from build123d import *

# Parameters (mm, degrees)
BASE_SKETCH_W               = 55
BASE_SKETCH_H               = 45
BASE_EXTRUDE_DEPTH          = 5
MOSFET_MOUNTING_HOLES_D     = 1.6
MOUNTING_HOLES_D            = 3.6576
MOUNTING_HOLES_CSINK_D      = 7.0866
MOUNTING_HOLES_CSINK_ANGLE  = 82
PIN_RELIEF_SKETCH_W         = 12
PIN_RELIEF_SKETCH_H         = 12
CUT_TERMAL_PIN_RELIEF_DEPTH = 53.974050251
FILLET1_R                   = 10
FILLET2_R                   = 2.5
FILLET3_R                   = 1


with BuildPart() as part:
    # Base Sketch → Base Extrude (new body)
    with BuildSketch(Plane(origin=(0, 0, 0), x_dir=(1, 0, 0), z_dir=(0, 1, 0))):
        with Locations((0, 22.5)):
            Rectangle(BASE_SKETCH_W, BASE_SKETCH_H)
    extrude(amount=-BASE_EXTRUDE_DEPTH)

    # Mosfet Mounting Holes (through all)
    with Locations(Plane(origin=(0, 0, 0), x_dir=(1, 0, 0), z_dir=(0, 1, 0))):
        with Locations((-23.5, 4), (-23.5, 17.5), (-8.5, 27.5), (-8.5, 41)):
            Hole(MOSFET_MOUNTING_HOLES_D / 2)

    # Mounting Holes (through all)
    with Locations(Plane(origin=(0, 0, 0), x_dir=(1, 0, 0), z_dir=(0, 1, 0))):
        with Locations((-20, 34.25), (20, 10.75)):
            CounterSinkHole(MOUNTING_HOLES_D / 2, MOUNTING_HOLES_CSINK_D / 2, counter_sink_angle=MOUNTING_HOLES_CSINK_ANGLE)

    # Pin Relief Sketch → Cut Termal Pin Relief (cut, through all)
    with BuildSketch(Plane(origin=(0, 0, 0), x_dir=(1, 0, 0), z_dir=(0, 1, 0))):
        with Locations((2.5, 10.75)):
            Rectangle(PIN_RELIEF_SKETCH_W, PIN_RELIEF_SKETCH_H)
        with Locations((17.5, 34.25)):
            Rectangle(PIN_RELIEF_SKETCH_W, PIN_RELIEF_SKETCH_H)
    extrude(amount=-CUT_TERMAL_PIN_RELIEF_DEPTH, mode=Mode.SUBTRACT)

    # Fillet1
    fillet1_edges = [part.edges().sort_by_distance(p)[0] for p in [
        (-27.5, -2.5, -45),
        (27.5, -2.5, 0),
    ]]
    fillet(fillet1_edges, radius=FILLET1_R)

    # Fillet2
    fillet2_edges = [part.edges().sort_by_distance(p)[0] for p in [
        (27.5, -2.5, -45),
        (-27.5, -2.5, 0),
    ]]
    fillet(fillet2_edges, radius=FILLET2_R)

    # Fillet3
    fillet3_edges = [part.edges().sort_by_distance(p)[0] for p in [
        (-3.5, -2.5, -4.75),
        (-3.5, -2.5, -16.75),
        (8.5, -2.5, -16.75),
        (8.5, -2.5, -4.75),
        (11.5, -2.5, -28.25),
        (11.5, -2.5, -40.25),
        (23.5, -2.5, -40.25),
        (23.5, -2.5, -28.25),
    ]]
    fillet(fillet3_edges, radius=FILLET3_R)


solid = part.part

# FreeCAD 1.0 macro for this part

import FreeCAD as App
import Part
import Sketcher

V = App.Vector


def edges_at(feature, points):
    """Names of the edges that pass closest to the given points."""
    edges = feature.Shape.Edges
    near = lambda p: min(range(len(edges)), key=lambda i: edges[i].distToShape(Part.Vertex(*p))[0])
    return sorted({f"Edge{near(p) + 1}" for p in points})

doc = App.newDocument("Part")
params = doc.addObject("Spreadsheet::Sheet", "Params")
for row, (alias, value) in enumerate([
    ("sketch1_width", "55 mm"),
    ("sketch1_height", "45 mm"),
    ("pad1_length", "5 mm"),
    ("sketch2_diameter", "1.6 mm"),
    ("hole_diameter", "1.6 mm"),
    ("hole2_diameter", "3.6576 mm"),
    ("hole2_csink_diameter", "7.0866 mm"),
    ("sketch4_width", "12 mm"),
    ("fillet_radius", "10 mm"),
    ("fillet2_radius", "2.5 mm"),
    ("fillet3_radius", "1 mm"),
], start=1):
    params.set(f"A{row}", alias)
    params.set(f"B{row}", "=" + value)
    params.setAlias(f"B{row}", alias)

body = doc.addObject("PartDesign::Body", "Body")

sketch1 = body.newObject("Sketcher::SketchObject", "Sketch")
sketch1.AttachmentSupport = (doc.getObject("XZ_Plane"), [""])
sketch1.MapMode = "FlatFace"
sketch1.addGeometry(Part.LineSegment(V(-28, -45, 0), V(-28, 0, 0)), False)
sketch1.addGeometry(Part.LineSegment(V(-28, 0, 0), V(28, 0, 0)), False)
sketch1.addGeometry(Part.LineSegment(V(28, 0, 0), V(28, -45, 0)), False)
sketch1.addGeometry(Part.LineSegment(V(28, -45, 0), V(-28, -45, 0)), False)
sketch1.addConstraint(Sketcher.Constraint("Coincident", 0, 2, 1, 1))
sketch1.addConstraint(Sketcher.Constraint("Coincident", 1, 2, 2, 1))
sketch1.addConstraint(Sketcher.Constraint("Coincident", 2, 2, 3, 1))
sketch1.addConstraint(Sketcher.Constraint("Coincident", 3, 2, 0, 1))
sketch1.addConstraint(Sketcher.Constraint("Vertical", 0))
sketch1.addConstraint(Sketcher.Constraint("Horizontal", 1))
sketch1.addConstraint(Sketcher.Constraint("Vertical", 2))
sketch1.addConstraint(Sketcher.Constraint("Horizontal", 3))
sketch1.addConstraint(Sketcher.Constraint("Symmetric", 0, 2, 1, 2, -1, 1))
sketch1.addConstraint(Sketcher.Constraint("DistanceX", 1, 1, 1, 2, 55.0))
sketch1.addConstraint(Sketcher.Constraint("DistanceY", 0, 1, 0, 2, 45.0))
sketch1.setExpression("Constraints[9]", "Params.sketch1_width")
sketch1.setExpression("Constraints[10]", "Params.sketch1_height")
pad1 = body.newObject("PartDesign::Pad", "Pad")
pad1.Profile = sketch1
pad1.setExpression("Length", "Params.pad1_length")

sketch2 = body.newObject("Sketcher::SketchObject", "Sketch001")
sketch2.AttachmentSupport = (doc.getObject("XZ_Plane"), [""])
sketch2.MapMode = "FlatFace"
sketch2.addGeometry(Part.Circle(V(-23.5, -4, 0), V(0, 0, 1), 0.8), False)
sketch2.addGeometry(Part.Circle(V(-23.5, -17.5, 0), V(0, 0, 1), 0.8), False)
sketch2.addGeometry(Part.Circle(V(-8.5, -27.5, 0), V(0, 0, 1), 0.8), False)
sketch2.addGeometry(Part.Circle(V(-8.5, -41, 0), V(0, 0, 1), 0.8), False)
sketch2.addConstraint(Sketcher.Constraint("Equal", 0, 1))
sketch2.addConstraint(Sketcher.Constraint("Equal", 1, 2))
sketch2.addConstraint(Sketcher.Constraint("Equal", 2, 3))
sketch2.addConstraint(Sketcher.Constraint("Vertical", 0, 3, 1, 3))
sketch2.addConstraint(Sketcher.Constraint("Vertical", 2, 3, 3, 3))
sketch2.addConstraint(Sketcher.Constraint("Diameter", 0, 1.6))
sketch2.addConstraint(Sketcher.Constraint("DistanceY", 0, 3, -1, 1, 4.0))
sketch2.addConstraint(Sketcher.Constraint("DistanceY", 3, 3, -1, 1, 41.0))
sketch2.addConstraint(Sketcher.Constraint("DistanceX", 1, 3, 2, 3, 15.0))
sketch2.addConstraint(Sketcher.Constraint("DistanceY", 2, 3, 1, 3, 10.0))
sketch2.addConstraint(Sketcher.Constraint("DistanceX", 0, 3, -1, 1, 23.5))
sketch2.addConstraint(Sketcher.Constraint("DistanceY", 1, 3, -1, 1, 17.5))
sketch2.setExpression("Constraints[5]", "Params.sketch2_diameter")
doc.recompute()
hole = body.newObject("PartDesign::Hole", "Hole")
hole.Profile = sketch2
hole.ThreadType = "None"
hole.setExpression("Diameter", "Params.hole_diameter")
hole.DepthType = "ThroughAll"
hole.Reversed = True

sketch3 = body.newObject("Sketcher::SketchObject", "Sketch002")
sketch3.AttachmentSupport = (doc.getObject("XZ_Plane"), [""])
sketch3.MapMode = "FlatFace"
sketch3.addGeometry(Part.Circle(V(-20, -34.2, 0), V(0, 0, 1), 1.8), False)
sketch3.addGeometry(Part.Circle(V(20, -10.8, 0), V(0, 0, 1), 1.8), False)
sketch3.addConstraint(Sketcher.Constraint("Equal", 0, 1))
sketch3.addConstraint(Sketcher.Constraint("DistanceX", 0, 3, -1, 1, 20.0))
sketch3.addConstraint(Sketcher.Constraint("DistanceX", -1, 1, 1, 3, 20.0))
sketch3.addConstraint(Sketcher.Constraint("Diameter", 0, 3.6576))
sketch3.addConstraint(Sketcher.Constraint("DistanceY", 0, 3, 1, 3, 23.5))
sketch3.addConstraint(Sketcher.Constraint("DistanceY", 0, 3, -1, 1, 34.25))
doc.recompute()
hole2 = body.newObject("PartDesign::Hole", "Hole001")
hole2.Profile = sketch3
hole2.ThreadType = "None"
hole2.setExpression("Diameter", "Params.hole2_diameter")
hole2.DepthType = "ThroughAll"
hole2.HoleCutType = "Countersink"
hole2.setExpression("HoleCutDiameter", "Params.hole2_csink_diameter")
hole2.HoleCutCountersinkAngle = 82
hole2.Reversed = True

sketch4 = body.newObject("Sketcher::SketchObject", "Sketch003")
sketch4.AttachmentSupport = (doc.getObject("XZ_Plane"), [""])
sketch4.MapMode = "FlatFace"
sketch4.addGeometry(Part.LineSegment(V(-4, -17, 0), V(-4, -5, 0)), False)
sketch4.addGeometry(Part.LineSegment(V(-4, -5, 0), V(8, -5, 0)), False)
sketch4.addGeometry(Part.LineSegment(V(8, -5, 0), V(8, -17, 0)), False)
sketch4.addGeometry(Part.LineSegment(V(8, -17, 0), V(-4, -17, 0)), False)
sketch4.addGeometry(Part.LineSegment(V(12, -40, 0), V(12, -28, 0)), False)
sketch4.addGeometry(Part.LineSegment(V(12, -28, 0), V(24, -28, 0)), False)
sketch4.addGeometry(Part.LineSegment(V(24, -28, 0), V(24, -40, 0)), False)
sketch4.addGeometry(Part.LineSegment(V(24, -40, 0), V(12, -40, 0)), False)
sketch4.addConstraint(Sketcher.Constraint("Coincident", 0, 2, 1, 1))
sketch4.addConstraint(Sketcher.Constraint("Coincident", 1, 2, 2, 1))
sketch4.addConstraint(Sketcher.Constraint("Coincident", 2, 2, 3, 1))
sketch4.addConstraint(Sketcher.Constraint("Coincident", 3, 2, 0, 1))
sketch4.addConstraint(Sketcher.Constraint("Coincident", 4, 2, 5, 1))
sketch4.addConstraint(Sketcher.Constraint("Coincident", 5, 2, 6, 1))
sketch4.addConstraint(Sketcher.Constraint("Coincident", 6, 2, 7, 1))
sketch4.addConstraint(Sketcher.Constraint("Coincident", 7, 2, 4, 1))
sketch4.addConstraint(Sketcher.Constraint("Vertical", 0))
sketch4.addConstraint(Sketcher.Constraint("Horizontal", 1))
sketch4.addConstraint(Sketcher.Constraint("Vertical", 2))
sketch4.addConstraint(Sketcher.Constraint("Horizontal", 3))
sketch4.addConstraint(Sketcher.Constraint("Vertical", 4))
sketch4.addConstraint(Sketcher.Constraint("Horizontal", 5))
sketch4.addConstraint(Sketcher.Constraint("Vertical", 6))
sketch4.addConstraint(Sketcher.Constraint("Horizontal", 7))
sketch4.addConstraint(Sketcher.Constraint("Equal", 3, 5))
sketch4.addConstraint(Sketcher.Constraint("Equal", 7, 0))
sketch4.addConstraint(Sketcher.Constraint("Equal", 2, 4))
sketch4.addConstraint(Sketcher.Constraint("DistanceX", 1, 1, 1, 2, 12.0))
sketch4.addConstraint(Sketcher.Constraint("DistanceX", 2, 2, 4, 2, 3.0))
sketch4.addConstraint(Sketcher.Constraint("DistanceX", 0, 2, -1, 1, 3.5))
sketch4.addConstraint(Sketcher.Constraint("DistanceY", 4, 2, 2, 2, 11.5))
sketch4.addConstraint(Sketcher.Constraint("DistanceY", 0, 2, -1, 1, 4.75))
sketch4.setExpression("Constraints[19]", "Params.sketch4_width")
pocket1 = body.newObject("PartDesign::Pocket", "Pocket")
pocket1.Profile = sketch4
pocket1.Type = "ThroughAll"
pocket1.Reversed = True
doc.recompute()

fillet = body.newObject("PartDesign::Fillet", "Fillet")
fillet.Base = (pocket1, edges_at(pocket1, [(-27.5, -2.5, -45), (27.5, -2.5, 0)]))
fillet.setExpression("Radius", "Params.fillet_radius")
doc.recompute()

fillet2 = body.newObject("PartDesign::Fillet", "Fillet001")
fillet2.Base = (fillet, edges_at(fillet, [(27.5, -2.5, -45), (-27.5, -2.5, 0)]))
fillet2.setExpression("Radius", "Params.fillet2_radius")
doc.recompute()

fillet3 = body.newObject("PartDesign::Fillet", "Fillet002")
fillet3.Base = (fillet2, edges_at(fillet2, [
    (-3.5, -2.5, -4.75),
    (-3.5, -2.5, -16.75),
    (8.5, -2.5, -16.75),
    (8.5, -2.5, -4.75),
    (11.5, -2.5, -28.25),
    (11.5, -2.5, -40.25),
    (23.5, -2.5, -40.25),
    (23.5, -2.5, -28.25),
]))
fillet3.setExpression("Radius", "Params.fillet3_radius")

doc.recompute()
